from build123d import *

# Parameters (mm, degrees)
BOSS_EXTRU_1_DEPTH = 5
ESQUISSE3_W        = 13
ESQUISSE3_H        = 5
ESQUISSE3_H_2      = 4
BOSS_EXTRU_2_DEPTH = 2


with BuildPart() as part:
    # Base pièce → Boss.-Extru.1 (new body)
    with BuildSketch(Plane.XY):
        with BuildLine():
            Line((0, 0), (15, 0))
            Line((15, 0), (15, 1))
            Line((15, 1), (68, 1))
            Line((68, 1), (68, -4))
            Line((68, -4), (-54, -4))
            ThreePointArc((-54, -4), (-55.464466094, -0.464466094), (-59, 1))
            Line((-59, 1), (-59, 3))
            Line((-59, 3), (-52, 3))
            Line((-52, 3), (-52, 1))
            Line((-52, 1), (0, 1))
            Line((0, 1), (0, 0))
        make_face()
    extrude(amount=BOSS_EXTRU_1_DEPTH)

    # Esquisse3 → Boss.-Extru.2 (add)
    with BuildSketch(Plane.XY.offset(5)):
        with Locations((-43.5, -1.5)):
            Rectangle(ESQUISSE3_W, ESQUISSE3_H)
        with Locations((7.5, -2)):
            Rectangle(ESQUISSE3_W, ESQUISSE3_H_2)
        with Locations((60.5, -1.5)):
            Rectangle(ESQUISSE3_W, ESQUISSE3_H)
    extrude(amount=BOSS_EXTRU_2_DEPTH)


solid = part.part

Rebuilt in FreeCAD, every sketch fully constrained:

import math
import FreeCAD as App
import Part
import Sketcher


def add_polygon(sketch, points):
    """Adds a closed chain of lines whose ends are joined by coincident constraints."""
    first, n = sketch.GeometryCount, len(points)
    for a, b in zip(points, points[1:] + points[:1]):
        sketch.addGeometry(Part.LineSegment(App.Vector(*a, 0), App.Vector(*b, 0)), False)
    for i in range(n):
        sketch.addConstraint(Sketcher.Constraint("Coincident", first + i, 2, first + (i + 1) % n, 1))

doc = App.newDocument("Part")
body = doc.addObject("PartDesign::Body", "Body")

# Sketch on XY plane
sketch1 = body.newObject("Sketcher::SketchObject", "Sketch")
sketch1.AttachmentSupport = (doc.getObject("XY_Plane"), [""])
sketch1.MapMode = "FlatFace"
sketch1.addGeometry(Part.LineSegment(App.Vector(15, 0, 0), App.Vector(0, 0, 0)), False)
sketch1.addGeometry(Part.LineSegment(App.Vector(0, 0, 0), App.Vector(0, 1, 0)), False)
sketch1.addGeometry(Part.LineSegment(App.Vector(0, 1, 0), App.Vector(-52, 1, 0)), False)
sketch1.addGeometry(Part.LineSegment(App.Vector(-52, 1, 0), App.Vector(-52, 3, 0)), False)
sketch1.addGeometry(Part.LineSegment(App.Vector(-52, 3, 0), App.Vector(-59, 3, 0)), False)
sketch1.addGeometry(Part.LineSegment(App.Vector(-59, 3, 0), App.Vector(-59, 1, 0)), False)
sketch1.addGeometry(Part.ArcOfCircle(Part.Circle(App.Vector(-59, -4, 0), App.Vector(0, 0, 1), 5), math.radians(0), math.radians(90)), False)
sketch1.addGeometry(Part.LineSegment(App.Vector(-54, -4, 0), App.Vector(68, -4, 0)), False)
sketch1.addGeometry(Part.LineSegment(App.Vector(68, -4, 0), App.Vector(68, 1, 0)), False)
sketch1.addGeometry(Part.LineSegment(App.Vector(68, 1, 0), App.Vector(15, 1, 0)), False)
sketch1.addGeometry(Part.LineSegment(App.Vector(15, 1, 0), App.Vector(15, 0, 0)), False)
sketch1.addConstraint(Sketcher.Constraint("Coincident", 0, 2, 1, 1))
sketch1.addConstraint(Sketcher.Constraint("Coincident", 1, 2, 2, 1))
sketch1.addConstraint(Sketcher.Constraint("Coincident", 2, 2, 3, 1))
sketch1.addConstraint(Sketcher.Constraint("Coincident", 3, 2, 4, 1))
sketch1.addConstraint(Sketcher.Constraint("Coincident", 4, 2, 5, 1))
sketch1.addConstraint(Sketcher.Constraint("Coincident", 5, 2, 6, 2))
sketch1.addConstraint(Sketcher.Constraint("Coincident", 6, 1, 7, 1))
sketch1.addConstraint(Sketcher.Constraint("Coincident", 7, 2, 8, 1))
sketch1.addConstraint(Sketcher.Constraint("Coincident", 8, 2, 9, 1))
sketch1.addConstraint(Sketcher.Constraint("Coincident", 9, 2, 10, 1))
sketch1.addConstraint(Sketcher.Constraint("Coincident", 10, 2, 0, 1))
sketch1.addConstraint(Sketcher.Constraint("Horizontal", 0))
sketch1.addConstraint(Sketcher.Constraint("Vertical", 1))
sketch1.addConstraint(Sketcher.Constraint("Horizontal", 2))
sketch1.addConstraint(Sketcher.Constraint("Vertical", 3))
sketch1.addConstraint(Sketcher.Constraint("Horizontal", 4))
sketch1.addConstraint(Sketcher.Constraint("Vertical", 5))
sketch1.addConstraint(Sketcher.Constraint("Horizontal", 7))
sketch1.addConstraint(Sketcher.Constraint("Vertical", 8))
sketch1.addConstraint(Sketcher.Constraint("Horizontal", 9))
sketch1.addConstraint(Sketcher.Constraint("Vertical", 10))
sketch1.addConstraint(Sketcher.Constraint("Coincident", 0, 2, -1, 1))
sketch1.addConstraint(Sketcher.Constraint("Horizontal", 2, 2, 5, 2))
sketch1.addConstraint(Sketcher.Constraint("Horizontal", 5, 2, 8, 2))
sketch1.addConstraint(Sketcher.Constraint("Vertical", 6, 3, 4, 2))
sketch1.addConstraint(Sketcher.Constraint("Radius", 6, 5.0))
sketch1.addConstraint(Sketcher.Constraint("DistanceX", 0, 2, 0, 1, 15.0))
sketch1.addConstraint(Sketcher.Constraint("DistanceX", 2, 2, 2, 1, 52.0))
sketch1.addConstraint(Sketcher.Constraint("DistanceX", 4, 2, 4, 1, 7.0))
sketch1.addConstraint(Sketcher.Constraint("DistanceX", 7, 1, 7, 2, 122.0))
sketch1.addConstraint(Sketcher.Constraint("DistanceY", 1, 1, 1, 2, 1.0))
sketch1.addConstraint(Sketcher.Constraint("DistanceY", 3, 1, 3, 2, 2.0))
sketch1.addConstraint(Sketcher.Constraint("DistanceY", 8, 1, 8, 2, 5.0))
pad1 = body.newObject("PartDesign::Pad", "Pad")
pad1.Profile = sketch1
pad1.Length = 5

# Sketch on XY plane
sketch2 = body.newObject("Sketcher::SketchObject", "Sketch001")
sketch2.AttachmentSupport = (doc.getObject("XY_Plane"), [""])
sketch2.MapMode = "FlatFace"
sketch2.AttachmentOffset = App.Placement(App.Vector(0, 0, 5), App.Rotation())
add_polygon(sketch2, [(-50, 1), (-50, -4), (-37, -4), (-37, 1)])  # lines 0-3
add_polygon(sketch2, [(1, 0), (1, -4), (14, -4), (14, 0)])  # lines 4-7
add_polygon(sketch2, [(54, 1), (54, -4), (67, -4), (67, 1)])  # lines 8-11
sketch2.addConstraint(Sketcher.Constraint("Vertical", 0))
sketch2.addConstraint(Sketcher.Constraint("Horizontal", 1))
sketch2.addConstraint(Sketcher.Constraint("Vertical", 2))
sketch2.addConstraint(Sketcher.Constraint("Horizontal", 3))
sketch2.addConstraint(Sketcher.Constraint("Vertical", 4))
sketch2.addConstraint(Sketcher.Constraint("Horizontal", 5))
sketch2.addConstraint(Sketcher.Constraint("Vertical", 6))
sketch2.addConstraint(Sketcher.Constraint("Horizontal", 7))
sketch2.addConstraint(Sketcher.Constraint("Vertical", 8))
sketch2.addConstraint(Sketcher.Constraint("Horizontal", 9))
sketch2.addConstraint(Sketcher.Constraint("Vertical", 10))
sketch2.addConstraint(Sketcher.Constraint("Horizontal", 11))
sketch2.addConstraint(Sketcher.Constraint("PointOnObject", 6, 2, -1))
sketch2.addConstraint(Sketcher.Constraint("Horizontal", 1, 2, 4, 2))
sketch2.addConstraint(Sketcher.Constraint("Horizontal", 5, 2, 8, 2))
sketch2.addConstraint(Sketcher.Constraint("Horizontal", 3, 2, 10, 2))
sketch2.addConstraint(Sketcher.Constraint("Equal", 3, 5))
sketch2.addConstraint(Sketcher.Constraint("Equal", 7, 9))
sketch2.addConstraint(Sketcher.Constraint("DistanceX", 1, 1, 1, 2, 13.0))
sketch2.addConstraint(Sketcher.Constraint("DistanceY", 0, 2, 0, 1, 5.0))
sketch2.addConstraint(Sketcher.Constraint("DistanceY", 4, 2, 4, 1, 4.0))
sketch2.addConstraint(Sketcher.Constraint("DistanceX", 0, 2, -1, 1, 50.0))
sketch2.addConstraint(Sketcher.Constraint("DistanceX", -1, 1, 4, 2, 1.0))
sketch2.addConstraint(Sketcher.Constraint("DistanceX", -1, 1, 8, 2, 54.0))
pad2 = body.newObject("PartDesign::Pad", "Pad001")
pad2.Profile = sketch2
pad2.Length = 2

doc.recompute()
